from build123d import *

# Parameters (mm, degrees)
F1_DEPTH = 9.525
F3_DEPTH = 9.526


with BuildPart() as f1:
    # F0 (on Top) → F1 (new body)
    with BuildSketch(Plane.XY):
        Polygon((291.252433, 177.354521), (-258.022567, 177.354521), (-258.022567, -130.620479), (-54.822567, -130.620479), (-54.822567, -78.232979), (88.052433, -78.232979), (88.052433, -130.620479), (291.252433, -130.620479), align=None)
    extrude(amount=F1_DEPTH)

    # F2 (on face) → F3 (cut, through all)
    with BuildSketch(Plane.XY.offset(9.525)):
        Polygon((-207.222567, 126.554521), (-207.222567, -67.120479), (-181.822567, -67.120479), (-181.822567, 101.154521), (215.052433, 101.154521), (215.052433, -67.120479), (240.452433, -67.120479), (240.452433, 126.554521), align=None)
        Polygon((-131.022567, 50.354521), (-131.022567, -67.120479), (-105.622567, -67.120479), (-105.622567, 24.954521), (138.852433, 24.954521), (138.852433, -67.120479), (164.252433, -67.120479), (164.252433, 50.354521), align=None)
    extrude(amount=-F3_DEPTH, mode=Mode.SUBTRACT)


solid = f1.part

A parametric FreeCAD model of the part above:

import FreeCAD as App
import Part
import Sketcher

V = App.Vector
Q = App.Units.Quantity

doc = App.newDocument("Part")
body = doc.addObject("PartDesign::Body", "Body")

# Sketch on XY plane
sketch1 = body.newObject("Sketcher::SketchObject", "Sketch")
sketch1.AttachmentSupport = (doc.getObject("XY_Plane"), [""])
sketch1.MapMode = "FlatFace"
sketch1.addGeometry([
    Part.LineSegment(V(291, 177, 0), V(-258, 177, 0)),  # 0
    Part.LineSegment(V(-258, 177, 0), V(-258, -131, 0)),  # 1
    Part.LineSegment(V(-258, -131, 0), V(-55, -131, 0)),  # 2
    Part.LineSegment(V(-55, -131, 0), V(-55, -78, 0)),  # 3
    Part.LineSegment(V(-55, -78, 0), V(88, -78, 0)),  # 4
    Part.LineSegment(V(88, -78, 0), V(88, -131, 0)),  # 5
    Part.LineSegment(V(88, -131, 0), V(291, -131, 0)),  # 6
    Part.LineSegment(V(291, -131, 0), V(291, 177, 0)),  # 7
], False)
sketch1.addConstraint([
    Sketcher.Constraint("Coincident", 0, 2, 1, 1),
    Sketcher.Constraint("Coincident", 1, 2, 2, 1),
    Sketcher.Constraint("Coincident", 2, 2, 3, 1),
    Sketcher.Constraint("Coincident", 3, 2, 4, 1),
    Sketcher.Constraint("Coincident", 4, 2, 5, 1),
    Sketcher.Constraint("Coincident", 5, 2, 6, 1),
    Sketcher.Constraint("Coincident", 6, 2, 7, 1),
    Sketcher.Constraint("Coincident", 7, 2, 0, 1),
    Sketcher.Constraint("Horizontal", 0),
    Sketcher.Constraint("Vertical", 1),
    Sketcher.Constraint("Horizontal", 2),
    Sketcher.Constraint("Vertical", 3),
    Sketcher.Constraint("Horizontal", 4),
    Sketcher.Constraint("Vertical", 5),
    Sketcher.Constraint("Horizontal", 6),
    Sketcher.Constraint("Vertical", 7),
    Sketcher.Constraint("Horizontal", 2, 2, 5, 2),
    Sketcher.Constraint("Equal", 2, 6),
    Sketcher.Constraint("DistanceX", 2, 1, 2, 2, Q("8 in")),
    Sketcher.Constraint("DistanceX", 0, 2, 0, 1, Q("21.625 in")),
    Sketcher.Constraint("DistanceY", 1, 2, 1, 1, Q("12.125 in")),
    Sketcher.Constraint("DistanceY", 3, 1, 3, 2, Q("2.0625 in")),
    Sketcher.Constraint("DistanceY", -1, 1, 0, 2, Q("177.354521 mm")),
    Sketcher.Constraint("DistanceX", 0, 2, -1, 1, Q("258.022567 mm")),
])
pad1 = body.newObject("PartDesign::Pad", "Pad")
pad1.Profile = sketch1
pad1.Length = Q("0.375 in")

# Sketch on XY plane
sketch2 = body.newObject("Sketcher::SketchObject", "Sketch001")
sketch2.AttachmentSupport = (doc.getObject("XY_Plane"), [""])
sketch2.MapMode = "FlatFace"
sketch2.AttachmentOffset = App.Placement(V(0, 0, 0.375 * 25.4), App.Rotation())
sketch2.addGeometry([
    Part.LineSegment(V(-207, 127, 0), V(-207, -67, 0)),  # 0
    Part.LineSegment(V(-207, -67, 0), V(-182, -67, 0)),  # 1
    Part.LineSegment(V(-182, -67, 0), V(-182, 101, 0)),  # 2
    Part.LineSegment(V(-182, 101, 0), V(215, 101, 0)),  # 3
    Part.LineSegment(V(215, 101, 0), V(215, -67, 0)),  # 4
    Part.LineSegment(V(215, -67, 0), V(240, -67, 0)),  # 5
    Part.LineSegment(V(240, -67, 0), V(240, 127, 0)),  # 6
    Part.LineSegment(V(240, 127, 0), V(-207, 127, 0)),  # 7
    Part.LineSegment(V(-131, 50, 0), V(-131, -67, 0)),  # 8
    Part.LineSegment(V(-131, -67, 0), V(-106, -67, 0)),  # 9
    Part.LineSegment(V(-106, -67, 0), V(-106, 25, 0)),  # 10
    Part.LineSegment(V(-106, 25, 0), V(139, 25, 0)),  # 11
    Part.LineSegment(V(139, 25, 0), V(139, -67, 0)),  # 12
    Part.LineSegment(V(139, -67, 0), V(164, -67, 0)),  # 13
    Part.LineSegment(V(164, -67, 0), V(164, 50, 0)),  # 14
    Part.LineSegment(V(164, 50, 0), V(-131, 50, 0)),  # 15
], False)
sketch2.addConstraint([
    Sketcher.Constraint("Coincident", 0, 2, 1, 1),
    Sketcher.Constraint("Coincident", 1, 2, 2, 1),
    Sketcher.Constraint("Coincident", 2, 2, 3, 1),
    Sketcher.Constraint("Coincident", 3, 2, 4, 1),
    Sketcher.Constraint("Coincident", 4, 2, 5, 1),
    Sketcher.Constraint("Coincident", 5, 2, 6, 1),
    Sketcher.Constraint("Coincident", 6, 2, 7, 1),
    Sketcher.Constraint("Coincident", 7, 2, 0, 1),
    Sketcher.Constraint("Coincident", 8, 2, 9, 1),
    Sketcher.Constraint("Coincident", 9, 2, 10, 1),
    Sketcher.Constraint("Coincident", 10, 2, 11, 1),
    Sketcher.Constraint("Coincident", 11, 2, 12, 1),
    Sketcher.Constraint("Coincident", 12, 2, 13, 1),
    Sketcher.Constraint("Coincident", 13, 2, 14, 1),
    Sketcher.Constraint("Coincident", 14, 2, 15, 1),
    Sketcher.Constraint("Coincident", 15, 2, 8, 1),
    Sketcher.Constraint("Vertical", 0),
    Sketcher.Constraint("Horizontal", 1),
    Sketcher.Constraint("Vertical", 2),
    Sketcher.Constraint("Horizontal", 3),
    Sketcher.Constraint("Vertical", 4),
    Sketcher.Constraint("Horizontal", 5),
    Sketcher.Constraint("Vertical", 6),
    Sketcher.Constraint("Horizontal", 7),
    Sketcher.Constraint("Vertical", 8),
    Sketcher.Constraint("Horizontal", 9),
    Sketcher.Constraint("Vertical", 10),
    Sketcher.Constraint("Horizontal", 11),
    Sketcher.Constraint("Vertical", 12),
    Sketcher.Constraint("Horizontal", 13),
    Sketcher.Constraint("Vertical", 14),
    Sketcher.Constraint("Horizontal", 15),
    Sketcher.Constraint("Horizontal", 1, 2, 4, 2),
    Sketcher.Constraint("Horizontal", 5, 2, 8, 2),
    Sketcher.Constraint("Horizontal", 9, 2, 12, 2),
    Sketcher.Constraint("Equal", 1, 5),
    Sketcher.Constraint("Equal", 5, 9),
    Sketcher.Constraint("Equal", 9, 13),
    Sketcher.Constraint("DistanceX", 1, 1, 1, 2, Q("1 in")),
    Sketcher.Constraint("DistanceY", 3, 2, 6, 2, Q("1 in")),
    Sketcher.Constraint("DistanceX", 1, 2, 8, 2, Q("2 in")),
    Sketcher.Constraint("DistanceY", 10, 2, 2, 2, Q("3 in")),
    Sketcher.Constraint("DistanceX", 11, 2, 3, 2, Q("3 in")),
    Sketcher.Constraint("DistanceY", 11, 2, 14, 2, Q("1 in")),
    Sketcher.Constraint("DistanceX", 3, 1, 3, 2, Q("15.625 in")),
    Sketcher.Constraint("DistanceY", 0, 2, 0, 1, Q("7.625 in")),
    Sketcher.Constraint("DistanceY", 0, 2, -1, 1, Q("67.120479 mm")),
    Sketcher.Constraint("DistanceX", 0, 2, -1, 1, Q("207.222567 mm")),
])
pocket1 = body.newObject("PartDesign::Pocket", "Pocket")
pocket1.Profile = sketch2
pocket1.Type = "ThroughAll"

doc.recompute()
